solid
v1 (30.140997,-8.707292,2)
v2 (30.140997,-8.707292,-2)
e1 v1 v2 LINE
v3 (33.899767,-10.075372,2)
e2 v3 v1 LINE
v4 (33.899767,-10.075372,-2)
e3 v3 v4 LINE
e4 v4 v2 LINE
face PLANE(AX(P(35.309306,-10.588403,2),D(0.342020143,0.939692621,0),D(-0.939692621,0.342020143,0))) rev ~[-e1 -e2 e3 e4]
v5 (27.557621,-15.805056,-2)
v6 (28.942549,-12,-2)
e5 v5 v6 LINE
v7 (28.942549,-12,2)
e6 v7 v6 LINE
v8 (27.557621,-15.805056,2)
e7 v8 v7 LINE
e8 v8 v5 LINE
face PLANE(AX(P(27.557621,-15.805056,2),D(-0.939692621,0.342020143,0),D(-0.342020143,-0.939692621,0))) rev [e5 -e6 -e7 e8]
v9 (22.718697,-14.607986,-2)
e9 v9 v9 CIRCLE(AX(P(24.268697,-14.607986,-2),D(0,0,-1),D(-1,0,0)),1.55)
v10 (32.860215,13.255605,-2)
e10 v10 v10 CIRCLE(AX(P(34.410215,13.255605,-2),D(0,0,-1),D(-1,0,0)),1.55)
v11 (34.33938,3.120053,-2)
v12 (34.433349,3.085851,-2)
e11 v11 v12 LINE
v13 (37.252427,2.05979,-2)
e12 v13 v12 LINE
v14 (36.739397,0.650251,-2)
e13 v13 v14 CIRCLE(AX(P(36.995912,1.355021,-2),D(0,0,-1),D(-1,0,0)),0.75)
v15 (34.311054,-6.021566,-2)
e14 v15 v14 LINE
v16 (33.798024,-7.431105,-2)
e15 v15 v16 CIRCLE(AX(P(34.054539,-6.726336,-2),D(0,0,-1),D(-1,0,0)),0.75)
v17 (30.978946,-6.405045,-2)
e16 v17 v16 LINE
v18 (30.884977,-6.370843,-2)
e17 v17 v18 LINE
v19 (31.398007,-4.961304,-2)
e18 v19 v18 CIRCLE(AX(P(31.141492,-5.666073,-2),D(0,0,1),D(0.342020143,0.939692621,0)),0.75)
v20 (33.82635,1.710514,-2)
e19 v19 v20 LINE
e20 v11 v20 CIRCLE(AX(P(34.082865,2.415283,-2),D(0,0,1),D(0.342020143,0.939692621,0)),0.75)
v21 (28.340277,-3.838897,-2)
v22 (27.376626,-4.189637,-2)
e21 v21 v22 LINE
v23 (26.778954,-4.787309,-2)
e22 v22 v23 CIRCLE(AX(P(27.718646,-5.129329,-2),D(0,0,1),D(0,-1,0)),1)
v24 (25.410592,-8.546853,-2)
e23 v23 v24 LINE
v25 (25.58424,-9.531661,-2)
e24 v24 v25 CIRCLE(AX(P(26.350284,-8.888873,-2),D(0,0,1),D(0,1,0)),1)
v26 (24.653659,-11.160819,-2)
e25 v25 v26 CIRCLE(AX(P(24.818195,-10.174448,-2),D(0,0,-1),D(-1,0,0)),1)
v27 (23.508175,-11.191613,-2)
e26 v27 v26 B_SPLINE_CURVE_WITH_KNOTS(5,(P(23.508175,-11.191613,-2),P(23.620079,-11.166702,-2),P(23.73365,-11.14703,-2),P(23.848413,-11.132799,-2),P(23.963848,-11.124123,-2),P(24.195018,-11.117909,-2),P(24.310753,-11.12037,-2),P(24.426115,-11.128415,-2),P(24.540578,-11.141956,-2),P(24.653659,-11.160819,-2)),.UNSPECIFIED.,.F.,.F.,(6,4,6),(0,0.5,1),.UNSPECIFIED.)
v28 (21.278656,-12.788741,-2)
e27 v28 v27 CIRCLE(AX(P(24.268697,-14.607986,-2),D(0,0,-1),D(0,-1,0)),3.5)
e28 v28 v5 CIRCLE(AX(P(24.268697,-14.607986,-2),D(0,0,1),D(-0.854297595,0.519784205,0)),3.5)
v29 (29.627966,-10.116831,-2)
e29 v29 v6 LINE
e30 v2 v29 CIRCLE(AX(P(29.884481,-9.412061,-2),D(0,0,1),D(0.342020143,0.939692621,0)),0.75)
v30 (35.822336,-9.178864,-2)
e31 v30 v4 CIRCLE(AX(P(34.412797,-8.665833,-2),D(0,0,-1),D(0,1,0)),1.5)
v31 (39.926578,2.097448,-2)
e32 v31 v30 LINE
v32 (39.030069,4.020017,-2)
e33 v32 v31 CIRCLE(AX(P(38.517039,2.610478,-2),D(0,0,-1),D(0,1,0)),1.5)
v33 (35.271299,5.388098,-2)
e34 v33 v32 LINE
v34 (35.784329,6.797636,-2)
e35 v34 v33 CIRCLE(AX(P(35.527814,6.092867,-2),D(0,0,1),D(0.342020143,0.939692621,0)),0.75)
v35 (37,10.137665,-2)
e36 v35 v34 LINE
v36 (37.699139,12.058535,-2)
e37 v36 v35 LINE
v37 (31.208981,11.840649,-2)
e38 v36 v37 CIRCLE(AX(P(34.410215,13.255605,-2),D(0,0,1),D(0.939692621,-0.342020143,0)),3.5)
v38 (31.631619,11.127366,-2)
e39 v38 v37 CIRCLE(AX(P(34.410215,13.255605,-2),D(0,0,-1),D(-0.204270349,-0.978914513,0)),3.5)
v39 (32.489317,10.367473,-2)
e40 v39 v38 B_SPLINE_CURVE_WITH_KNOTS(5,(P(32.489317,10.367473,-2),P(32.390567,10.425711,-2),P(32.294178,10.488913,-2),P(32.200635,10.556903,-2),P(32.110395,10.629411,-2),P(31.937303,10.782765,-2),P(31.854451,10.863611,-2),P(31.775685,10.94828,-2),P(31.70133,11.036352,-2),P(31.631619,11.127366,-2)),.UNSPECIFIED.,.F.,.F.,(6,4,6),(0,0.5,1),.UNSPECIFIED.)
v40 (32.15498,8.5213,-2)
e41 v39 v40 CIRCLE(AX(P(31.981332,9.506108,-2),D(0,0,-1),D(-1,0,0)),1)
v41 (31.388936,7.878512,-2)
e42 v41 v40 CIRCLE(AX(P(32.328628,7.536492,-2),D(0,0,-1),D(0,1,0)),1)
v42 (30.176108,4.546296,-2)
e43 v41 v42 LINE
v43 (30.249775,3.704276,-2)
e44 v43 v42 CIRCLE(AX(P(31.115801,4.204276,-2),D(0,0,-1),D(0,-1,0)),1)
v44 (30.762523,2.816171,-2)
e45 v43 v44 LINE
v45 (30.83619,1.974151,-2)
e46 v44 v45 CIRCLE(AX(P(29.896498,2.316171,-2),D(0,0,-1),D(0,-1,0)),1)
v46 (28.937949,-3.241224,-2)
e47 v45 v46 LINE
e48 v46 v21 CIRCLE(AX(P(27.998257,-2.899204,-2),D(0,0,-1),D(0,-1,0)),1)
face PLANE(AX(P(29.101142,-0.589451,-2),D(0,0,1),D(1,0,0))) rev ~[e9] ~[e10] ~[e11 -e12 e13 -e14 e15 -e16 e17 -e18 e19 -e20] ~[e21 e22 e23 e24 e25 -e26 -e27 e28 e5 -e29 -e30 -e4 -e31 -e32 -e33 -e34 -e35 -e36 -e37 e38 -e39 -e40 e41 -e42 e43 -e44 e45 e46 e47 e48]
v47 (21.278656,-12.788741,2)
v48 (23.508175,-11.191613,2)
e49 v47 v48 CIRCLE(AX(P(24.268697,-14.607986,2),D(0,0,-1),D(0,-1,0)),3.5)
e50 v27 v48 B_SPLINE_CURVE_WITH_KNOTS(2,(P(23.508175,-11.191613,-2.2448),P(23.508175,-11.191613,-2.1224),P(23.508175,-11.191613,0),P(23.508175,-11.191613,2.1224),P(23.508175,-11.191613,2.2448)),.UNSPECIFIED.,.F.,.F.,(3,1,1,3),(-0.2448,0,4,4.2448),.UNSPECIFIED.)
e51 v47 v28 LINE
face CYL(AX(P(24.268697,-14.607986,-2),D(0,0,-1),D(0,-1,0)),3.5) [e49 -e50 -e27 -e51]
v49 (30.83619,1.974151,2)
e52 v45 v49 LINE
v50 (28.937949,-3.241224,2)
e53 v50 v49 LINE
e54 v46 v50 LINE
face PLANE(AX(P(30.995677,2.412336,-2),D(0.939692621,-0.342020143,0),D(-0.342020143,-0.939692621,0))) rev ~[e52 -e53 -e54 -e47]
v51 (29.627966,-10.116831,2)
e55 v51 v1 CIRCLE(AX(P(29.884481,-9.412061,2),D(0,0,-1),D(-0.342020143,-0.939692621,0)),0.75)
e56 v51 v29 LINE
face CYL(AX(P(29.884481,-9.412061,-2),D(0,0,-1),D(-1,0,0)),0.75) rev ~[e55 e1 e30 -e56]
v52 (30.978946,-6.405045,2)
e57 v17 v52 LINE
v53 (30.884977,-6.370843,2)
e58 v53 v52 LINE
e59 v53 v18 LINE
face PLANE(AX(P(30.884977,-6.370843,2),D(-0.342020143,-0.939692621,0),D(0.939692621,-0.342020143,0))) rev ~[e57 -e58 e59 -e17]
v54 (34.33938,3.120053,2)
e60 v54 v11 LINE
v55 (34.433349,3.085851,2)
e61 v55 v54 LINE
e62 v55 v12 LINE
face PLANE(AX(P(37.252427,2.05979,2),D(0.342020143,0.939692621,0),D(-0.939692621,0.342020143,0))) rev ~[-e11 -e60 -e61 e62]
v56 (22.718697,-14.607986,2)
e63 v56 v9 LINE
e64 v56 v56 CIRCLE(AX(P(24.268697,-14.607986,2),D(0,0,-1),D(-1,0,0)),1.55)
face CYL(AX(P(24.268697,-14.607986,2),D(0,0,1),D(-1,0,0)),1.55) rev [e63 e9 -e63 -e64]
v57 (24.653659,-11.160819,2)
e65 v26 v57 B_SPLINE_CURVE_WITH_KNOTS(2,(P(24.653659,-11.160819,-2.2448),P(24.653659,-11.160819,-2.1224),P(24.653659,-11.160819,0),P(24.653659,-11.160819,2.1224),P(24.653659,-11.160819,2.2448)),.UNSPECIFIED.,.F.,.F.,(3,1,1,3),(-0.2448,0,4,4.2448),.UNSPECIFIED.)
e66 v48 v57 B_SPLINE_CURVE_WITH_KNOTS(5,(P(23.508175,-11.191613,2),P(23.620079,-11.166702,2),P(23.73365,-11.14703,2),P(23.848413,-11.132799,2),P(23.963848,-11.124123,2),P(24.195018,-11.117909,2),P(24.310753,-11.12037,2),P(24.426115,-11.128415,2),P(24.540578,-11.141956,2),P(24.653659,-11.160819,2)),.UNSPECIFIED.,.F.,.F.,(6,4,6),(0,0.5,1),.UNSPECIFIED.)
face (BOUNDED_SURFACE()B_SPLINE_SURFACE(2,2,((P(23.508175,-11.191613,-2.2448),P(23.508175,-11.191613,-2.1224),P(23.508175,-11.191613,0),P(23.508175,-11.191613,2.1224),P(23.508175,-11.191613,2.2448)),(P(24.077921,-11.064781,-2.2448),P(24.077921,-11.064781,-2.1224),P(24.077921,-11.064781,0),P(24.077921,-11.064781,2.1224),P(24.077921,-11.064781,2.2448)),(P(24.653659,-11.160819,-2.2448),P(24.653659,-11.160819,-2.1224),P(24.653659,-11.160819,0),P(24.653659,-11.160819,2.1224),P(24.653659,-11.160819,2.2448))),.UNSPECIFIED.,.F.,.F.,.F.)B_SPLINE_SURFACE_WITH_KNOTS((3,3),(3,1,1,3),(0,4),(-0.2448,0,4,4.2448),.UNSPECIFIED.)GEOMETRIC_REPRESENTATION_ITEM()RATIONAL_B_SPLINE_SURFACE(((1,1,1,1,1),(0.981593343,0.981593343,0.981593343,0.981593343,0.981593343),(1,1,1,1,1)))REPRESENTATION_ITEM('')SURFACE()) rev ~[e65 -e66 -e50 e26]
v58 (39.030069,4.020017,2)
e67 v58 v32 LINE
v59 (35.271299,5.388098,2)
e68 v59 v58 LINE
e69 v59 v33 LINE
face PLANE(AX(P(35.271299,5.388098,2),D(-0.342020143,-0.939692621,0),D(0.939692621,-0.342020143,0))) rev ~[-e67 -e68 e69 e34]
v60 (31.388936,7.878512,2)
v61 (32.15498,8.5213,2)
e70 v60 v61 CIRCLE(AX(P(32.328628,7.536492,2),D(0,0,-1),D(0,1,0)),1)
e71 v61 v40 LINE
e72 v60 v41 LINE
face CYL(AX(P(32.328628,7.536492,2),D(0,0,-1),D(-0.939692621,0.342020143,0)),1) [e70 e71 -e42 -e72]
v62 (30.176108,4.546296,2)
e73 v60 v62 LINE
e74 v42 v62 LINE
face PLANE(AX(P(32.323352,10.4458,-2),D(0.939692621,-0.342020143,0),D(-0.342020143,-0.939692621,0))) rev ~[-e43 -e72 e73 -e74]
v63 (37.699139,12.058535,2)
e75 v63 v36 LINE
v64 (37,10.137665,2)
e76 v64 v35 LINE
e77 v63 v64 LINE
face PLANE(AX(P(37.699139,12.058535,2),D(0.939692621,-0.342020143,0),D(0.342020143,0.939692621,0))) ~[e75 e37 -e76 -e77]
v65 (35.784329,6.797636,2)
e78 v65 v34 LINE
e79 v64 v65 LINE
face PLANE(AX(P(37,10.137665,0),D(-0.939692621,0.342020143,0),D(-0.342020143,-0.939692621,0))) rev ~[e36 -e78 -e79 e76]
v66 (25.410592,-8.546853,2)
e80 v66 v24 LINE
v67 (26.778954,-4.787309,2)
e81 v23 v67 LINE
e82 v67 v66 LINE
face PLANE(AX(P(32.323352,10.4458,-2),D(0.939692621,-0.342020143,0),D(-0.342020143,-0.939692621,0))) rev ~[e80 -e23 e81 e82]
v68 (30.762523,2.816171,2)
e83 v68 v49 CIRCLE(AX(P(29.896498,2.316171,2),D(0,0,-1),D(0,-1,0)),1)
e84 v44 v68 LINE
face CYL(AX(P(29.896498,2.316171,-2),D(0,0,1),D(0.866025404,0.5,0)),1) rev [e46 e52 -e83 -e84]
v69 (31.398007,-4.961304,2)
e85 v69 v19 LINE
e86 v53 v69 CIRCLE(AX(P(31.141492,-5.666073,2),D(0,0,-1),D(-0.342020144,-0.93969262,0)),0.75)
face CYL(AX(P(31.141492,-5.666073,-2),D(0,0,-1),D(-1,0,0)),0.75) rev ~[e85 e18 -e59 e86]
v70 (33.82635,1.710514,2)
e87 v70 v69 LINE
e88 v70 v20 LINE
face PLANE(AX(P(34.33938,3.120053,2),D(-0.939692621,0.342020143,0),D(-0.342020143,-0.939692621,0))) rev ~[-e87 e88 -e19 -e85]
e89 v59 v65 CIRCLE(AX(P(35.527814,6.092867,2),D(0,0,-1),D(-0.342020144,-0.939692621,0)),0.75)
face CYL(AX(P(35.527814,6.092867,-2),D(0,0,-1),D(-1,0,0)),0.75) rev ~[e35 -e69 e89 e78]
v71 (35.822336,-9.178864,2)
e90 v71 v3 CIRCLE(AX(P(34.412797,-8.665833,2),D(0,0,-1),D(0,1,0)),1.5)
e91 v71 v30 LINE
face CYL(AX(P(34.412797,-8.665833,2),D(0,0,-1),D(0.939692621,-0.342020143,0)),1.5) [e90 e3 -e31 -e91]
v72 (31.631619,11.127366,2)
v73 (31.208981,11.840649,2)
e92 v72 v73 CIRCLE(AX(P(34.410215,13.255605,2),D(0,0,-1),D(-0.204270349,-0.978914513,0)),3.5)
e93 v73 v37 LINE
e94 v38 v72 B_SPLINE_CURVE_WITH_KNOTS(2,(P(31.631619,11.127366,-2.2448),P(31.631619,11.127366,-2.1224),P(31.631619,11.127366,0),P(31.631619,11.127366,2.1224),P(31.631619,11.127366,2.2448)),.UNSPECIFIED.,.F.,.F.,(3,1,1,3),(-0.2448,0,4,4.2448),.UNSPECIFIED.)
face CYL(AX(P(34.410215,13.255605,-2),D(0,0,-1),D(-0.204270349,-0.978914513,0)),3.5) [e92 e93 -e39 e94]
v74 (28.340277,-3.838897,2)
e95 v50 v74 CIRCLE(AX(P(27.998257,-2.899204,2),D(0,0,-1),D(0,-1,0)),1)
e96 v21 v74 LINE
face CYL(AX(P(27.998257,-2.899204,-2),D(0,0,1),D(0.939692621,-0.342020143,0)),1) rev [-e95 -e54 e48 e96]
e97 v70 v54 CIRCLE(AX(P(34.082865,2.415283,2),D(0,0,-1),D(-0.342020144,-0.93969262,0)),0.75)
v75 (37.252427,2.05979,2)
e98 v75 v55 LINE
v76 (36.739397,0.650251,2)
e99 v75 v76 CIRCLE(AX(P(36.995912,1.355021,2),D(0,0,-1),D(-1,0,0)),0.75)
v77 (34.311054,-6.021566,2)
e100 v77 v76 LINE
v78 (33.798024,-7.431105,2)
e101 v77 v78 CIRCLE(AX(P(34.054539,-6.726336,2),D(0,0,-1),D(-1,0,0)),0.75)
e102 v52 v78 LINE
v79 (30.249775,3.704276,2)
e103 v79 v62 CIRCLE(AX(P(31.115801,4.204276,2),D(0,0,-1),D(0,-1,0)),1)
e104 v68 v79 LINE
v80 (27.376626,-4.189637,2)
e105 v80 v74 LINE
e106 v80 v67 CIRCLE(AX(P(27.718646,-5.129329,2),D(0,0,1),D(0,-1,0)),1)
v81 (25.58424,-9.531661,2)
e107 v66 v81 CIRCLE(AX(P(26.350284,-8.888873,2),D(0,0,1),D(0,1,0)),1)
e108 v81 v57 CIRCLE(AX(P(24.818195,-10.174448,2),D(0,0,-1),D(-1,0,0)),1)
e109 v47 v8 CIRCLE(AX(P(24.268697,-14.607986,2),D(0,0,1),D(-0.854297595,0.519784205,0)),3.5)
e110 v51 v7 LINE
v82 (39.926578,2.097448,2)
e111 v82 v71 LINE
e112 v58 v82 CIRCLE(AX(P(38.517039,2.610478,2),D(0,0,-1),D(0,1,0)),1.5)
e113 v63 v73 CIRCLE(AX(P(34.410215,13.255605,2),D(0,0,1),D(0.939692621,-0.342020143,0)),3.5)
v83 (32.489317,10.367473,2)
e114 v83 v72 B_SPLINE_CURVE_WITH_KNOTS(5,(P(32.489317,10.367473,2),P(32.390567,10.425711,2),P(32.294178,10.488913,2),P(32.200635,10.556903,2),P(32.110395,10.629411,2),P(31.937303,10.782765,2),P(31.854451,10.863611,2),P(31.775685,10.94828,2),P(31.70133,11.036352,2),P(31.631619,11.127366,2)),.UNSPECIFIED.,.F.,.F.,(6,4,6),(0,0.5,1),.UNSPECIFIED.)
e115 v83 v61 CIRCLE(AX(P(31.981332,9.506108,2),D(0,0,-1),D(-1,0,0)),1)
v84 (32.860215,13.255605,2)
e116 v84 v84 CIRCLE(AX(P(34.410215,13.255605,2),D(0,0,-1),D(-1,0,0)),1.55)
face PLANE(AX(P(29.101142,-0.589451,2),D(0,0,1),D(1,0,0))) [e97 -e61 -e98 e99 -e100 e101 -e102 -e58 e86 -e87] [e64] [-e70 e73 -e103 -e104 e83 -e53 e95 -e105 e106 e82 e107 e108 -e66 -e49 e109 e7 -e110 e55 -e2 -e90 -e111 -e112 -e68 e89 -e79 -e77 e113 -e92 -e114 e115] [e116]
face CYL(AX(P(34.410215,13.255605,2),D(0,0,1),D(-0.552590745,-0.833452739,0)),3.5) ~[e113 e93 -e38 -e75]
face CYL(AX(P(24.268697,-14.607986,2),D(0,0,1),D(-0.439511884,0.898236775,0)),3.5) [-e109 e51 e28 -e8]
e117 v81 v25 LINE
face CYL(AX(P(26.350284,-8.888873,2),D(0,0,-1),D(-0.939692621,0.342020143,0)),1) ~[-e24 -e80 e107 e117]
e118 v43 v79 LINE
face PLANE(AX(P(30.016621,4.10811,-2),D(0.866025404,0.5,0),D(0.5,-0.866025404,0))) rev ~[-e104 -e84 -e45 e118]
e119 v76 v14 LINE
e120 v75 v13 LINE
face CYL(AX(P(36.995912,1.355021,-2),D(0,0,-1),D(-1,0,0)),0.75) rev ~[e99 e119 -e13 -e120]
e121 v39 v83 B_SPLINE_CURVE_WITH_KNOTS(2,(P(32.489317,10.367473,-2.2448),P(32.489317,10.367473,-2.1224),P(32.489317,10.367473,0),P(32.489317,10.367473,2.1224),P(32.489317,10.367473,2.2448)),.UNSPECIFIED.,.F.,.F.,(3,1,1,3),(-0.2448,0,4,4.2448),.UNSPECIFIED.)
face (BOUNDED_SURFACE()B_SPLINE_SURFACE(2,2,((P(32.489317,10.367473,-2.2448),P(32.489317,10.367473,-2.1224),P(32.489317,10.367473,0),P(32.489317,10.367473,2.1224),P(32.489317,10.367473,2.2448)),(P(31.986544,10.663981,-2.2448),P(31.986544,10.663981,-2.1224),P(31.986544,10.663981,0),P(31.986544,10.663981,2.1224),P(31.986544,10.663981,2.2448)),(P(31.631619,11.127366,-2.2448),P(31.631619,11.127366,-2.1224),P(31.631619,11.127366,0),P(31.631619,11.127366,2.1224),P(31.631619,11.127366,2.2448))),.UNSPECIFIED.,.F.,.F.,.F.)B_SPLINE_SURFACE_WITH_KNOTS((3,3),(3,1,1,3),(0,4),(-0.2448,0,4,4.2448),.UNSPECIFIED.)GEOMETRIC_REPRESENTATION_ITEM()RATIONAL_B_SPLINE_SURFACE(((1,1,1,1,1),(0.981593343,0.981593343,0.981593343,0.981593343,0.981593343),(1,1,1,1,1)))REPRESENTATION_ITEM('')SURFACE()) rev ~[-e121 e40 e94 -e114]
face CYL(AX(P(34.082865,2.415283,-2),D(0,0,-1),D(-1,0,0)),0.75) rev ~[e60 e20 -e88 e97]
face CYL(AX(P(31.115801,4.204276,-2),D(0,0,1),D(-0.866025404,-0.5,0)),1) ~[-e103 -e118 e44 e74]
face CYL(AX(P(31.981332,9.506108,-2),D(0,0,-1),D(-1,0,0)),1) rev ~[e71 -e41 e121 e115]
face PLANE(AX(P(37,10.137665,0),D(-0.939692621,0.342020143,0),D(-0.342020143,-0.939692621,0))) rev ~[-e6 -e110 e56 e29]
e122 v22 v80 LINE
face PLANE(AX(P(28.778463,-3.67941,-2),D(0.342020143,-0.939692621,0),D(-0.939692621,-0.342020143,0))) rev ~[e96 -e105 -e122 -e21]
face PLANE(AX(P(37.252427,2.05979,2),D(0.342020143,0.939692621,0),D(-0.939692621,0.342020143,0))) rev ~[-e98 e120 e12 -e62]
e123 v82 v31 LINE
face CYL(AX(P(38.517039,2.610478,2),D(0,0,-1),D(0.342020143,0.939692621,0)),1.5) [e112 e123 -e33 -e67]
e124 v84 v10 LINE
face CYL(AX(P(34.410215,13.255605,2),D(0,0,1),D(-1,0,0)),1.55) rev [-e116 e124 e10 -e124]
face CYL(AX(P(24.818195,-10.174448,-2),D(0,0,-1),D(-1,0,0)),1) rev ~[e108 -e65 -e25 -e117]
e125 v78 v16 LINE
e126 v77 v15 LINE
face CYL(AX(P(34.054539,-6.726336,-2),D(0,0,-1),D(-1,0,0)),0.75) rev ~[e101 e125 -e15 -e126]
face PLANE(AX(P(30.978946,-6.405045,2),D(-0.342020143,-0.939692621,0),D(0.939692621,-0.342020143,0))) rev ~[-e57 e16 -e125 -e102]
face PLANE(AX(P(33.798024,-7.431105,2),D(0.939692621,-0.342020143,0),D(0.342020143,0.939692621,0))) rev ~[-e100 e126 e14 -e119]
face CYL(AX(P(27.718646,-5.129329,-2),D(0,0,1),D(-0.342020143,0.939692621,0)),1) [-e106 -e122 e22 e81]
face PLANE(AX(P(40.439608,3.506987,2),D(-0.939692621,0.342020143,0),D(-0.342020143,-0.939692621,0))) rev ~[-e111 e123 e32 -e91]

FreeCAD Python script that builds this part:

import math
import FreeCAD as App
import Part
import Sketcher
from FreeCAD import Vector
Q = App.Units.Quantity


def edges_at(feature, points):
    """Names of the edges that pass closest to the given points."""
    edges = feature.Shape.Edges
    near = lambda p: min(range(len(edges)), key=lambda i: edges[i].distToShape(Part.Vertex(*p))[0])
    return sorted({f"Edge{near(p) + 1}" for p in points})


def add_polygon(sketch, points):
    """Adds a closed chain of lines whose ends are joined by coincident constraints."""
    first, n = sketch.GeometryCount, len(points)
    for a, b in zip(points, points[1:] + points[:1]):
        sketch.addGeometry(Part.LineSegment(App.Vector(*a, 0), App.Vector(*b, 0)), False)
    for i in range(n):
        sketch.addConstraint(Sketcher.Constraint("Coincident", first + i, 2, first + (i + 1) % n, 1))

doc = App.newDocument("Part")
body = doc.addObject("PartDesign::Body", "Body")

sketch1 = body.newObject("Sketcher::SketchObject", "Sketch")
sketch1.AttachmentSupport = (doc.getObject("XY_Plane"), [""])
sketch1.MapMode = "FlatFace"
sketch1.addGeometry(Part.LineSegment(Vector(-10, 11, 0), Vector(-17.5, 11, 0)), False)
sketch1.addGeometry(Part.ArcOfCircle(Part.Circle(Vector(-17.5, 7.5, 0), Vector(0, 0, 1), 3.5), math.radians(90), math.radians(92.54)), False)
sketch1.addGeometry(Part.LineSegment(Vector(-17.66, 11, 0), Vector(-37, 10.14, 0)), False)
sketch1.addGeometry(Part.LineSegment(Vector(-37, 10.14, 0), Vector(-28.94, -12, 0)), False)
sketch1.addGeometry(Part.LineSegment(Vector(-28.94, -12, 0), Vector(-17.2, -10.99, 0)), False)
sketch1.addGeometry(Part.ArcOfCircle(Part.Circle(Vector(-17.5, -7.5, 0), Vector(0, 0, 1), 3.5), math.radians(-85), math.radians(-12)), False)
sketch1.addGeometry(Part.LineSegment(Vector(-14.08, -8.23, 0), Vector(-2.3, -10.76, 0)), False)
sketch1.addGeometry(Part.ArcOfCircle(Part.Circle(Vector(0, 0, 0), Vector(0, 0, 1), 11), math.radians(-102), math.radians(-78)), False)
sketch1.addGeometry(Part.LineSegment(Vector(2.3, -10.76, 0), Vector(14.08, -8.23, 0)), False)
sketch1.addGeometry(Part.ArcOfCircle(Part.Circle(Vector(17.5, -7.5, 0), Vector(0, 0, 1), 3.5), math.radians(-168), math.radians(-95)), False)
sketch1.addGeometry(Part.LineSegment(Vector(17.2, -10.99, 0), Vector(28.94, -12, 0)), False)
sketch1.addGeometry(Part.LineSegment(Vector(28.94, -12, 0), Vector(37, 10.14, 0)), False)
sketch1.addGeometry(Part.LineSegment(Vector(37, 10.14, 0), Vector(17.66, 11, 0)), False)
sketch1.addGeometry(Part.ArcOfCircle(Part.Circle(Vector(17.5, 7.5, 0), Vector(0, 0, 1), 3.5), math.radians(87.46), math.radians(90)), False)
sketch1.addGeometry(Part.LineSegment(Vector(17.5, 11, 0), Vector(10, 11, 0)), False)
sketch1.addGeometry(Part.LineSegment(Vector(10, 11, 0), Vector(8.32, 9, 0)), False)
sketch1.addGeometry(Part.LineSegment(Vector(8.32, 9, 0), Vector(-8.32, 9, 0)), False)
sketch1.addGeometry(Part.LineSegment(Vector(-8.32, 9, 0), Vector(-10, 11, 0)), False)
sketch1.addGeometry(Part.Circle(Vector(17.5, -7.5, 0), Vector(0, 0, 1), 1.55), False)
sketch1.addGeometry(Part.Circle(Vector(-17.5, -7.5, 0), Vector(0, 0, 1), 1.55), False)
sketch1.addGeometry(Part.Circle(Vector(17.5, 7.5, 0), Vector(0, 0, 1), 1.55), False)
sketch1.addGeometry(Part.Circle(Vector(0, 0, 0), Vector(0, 0, 1), 7), False)
sketch1.addGeometry(Part.Circle(Vector(-17.5, 7.5, 0), Vector(0, 0, 1), 1.55), False)
sketch1.addConstraint(Sketcher.Constraint("Tangent", 0, 2, 1, 1))
sketch1.addConstraint(Sketcher.Constraint("Tangent", 1, 2, 2, 1))
sketch1.addConstraint(Sketcher.Constraint("Coincident", 2, 2, 3, 1))
sketch1.addConstraint(Sketcher.Constraint("Coincident", 3, 2, 4, 1))
sketch1.addConstraint(Sketcher.Constraint("Tangent", 4, 2, 5, 1))
sketch1.addConstraint(Sketcher.Constraint("Coincident", 5, 2, 6, 1))
sketch1.addConstraint(Sketcher.Constraint("Tangent", 6, 2, 7, 1))
sketch1.addConstraint(Sketcher.Constraint("Tangent", 7, 2, 8, 1))
sketch1.addConstraint(Sketcher.Constraint("Coincident", 8, 2, 9, 1))
sketch1.addConstraint(Sketcher.Constraint("Tangent", 9, 2, 10, 1))
sketch1.addConstraint(Sketcher.Constraint("Coincident", 10, 2, 11, 1))
sketch1.addConstraint(Sketcher.Constraint("Coincident", 11, 2, 12, 1))
sketch1.addConstraint(Sketcher.Constraint("Tangent", 12, 2, 13, 1))
sketch1.addConstraint(Sketcher.Constraint("Tangent", 13, 2, 14, 1))
sketch1.addConstraint(Sketcher.Constraint("Coincident", 14, 2, 15, 1))
sketch1.addConstraint(Sketcher.Constraint("Coincident", 15, 2, 16, 1))
sketch1.addConstraint(Sketcher.Constraint("Coincident", 16, 2, 17, 1))
sketch1.addConstraint(Sketcher.Constraint("Coincident", 17, 2, 0, 1))
sketch1.addConstraint(Sketcher.Constraint("Horizontal", 0))
sketch1.addConstraint(Sketcher.Constraint("Horizontal", 14))
sketch1.addConstraint(Sketcher.Constraint("Horizontal", 16))
sketch1.addConstraint(Sketcher.Constraint("Coincident", 7, 3, -1, 1))
sketch1.addConstraint(Sketcher.Constraint("Coincident", 21, 3, -1, 1))
sketch1.addConstraint(Sketcher.Constraint("Coincident", 18, 3, 9, 3))
sketch1.addConstraint(Sketcher.Constraint("Coincident", 19, 3, 5, 3))
sketch1.addConstraint(Sketcher.Constraint("Coincident", 20, 3, 13, 3))
sketch1.addConstraint(Sketcher.Constraint("Coincident", 22, 3, 1, 3))
sketch1.addConstraint(Sketcher.Constraint("Equal", 5, 9))
sketch1.addConstraint(Sketcher.Constraint("Equal", 1, 13))
sketch1.addConstraint(Sketcher.Constraint("Equal", 18, 19))
sketch1.addConstraint(Sketcher.Constraint("Equal", 19, 20))
sketch1.addConstraint(Sketcher.Constraint("Equal", 20, 22))
sketch1.addConstraint(Sketcher.Constraint("Symmetric", 1, 3, 9, 3, -1, 1))
sketch1.addConstraint(Sketcher.Constraint("Symmetric", 5, 3, 13, 3, -1, 1))
sketch1.addConstraint(Sketcher.Constraint("Symmetric", 5, 3, 9, 3, -2))
sketch1.addConstraint(Sketcher.Constraint("Symmetric", 3, 2, 10, 2, -2))
sketch1.addConstraint(Sketcher.Constraint("Symmetric", 2, 2, 11, 2, -2))
sketch1.addConstraint(Sketcher.Constraint("Horizontal", 6, 2, 7, 2))
sketch1.addConstraint(Sketcher.Constraint("Equal", 0, 14))
sketch1.addConstraint(Sketcher.Constraint("Equal", 15, 17))
sketch1.addConstraint(Sketcher.Constraint("Diameter", 21, Q("14 mm")))
sketch1.addConstraint(Sketcher.Constraint("Radius", 7, Q("11 mm")))
sketch1.addConstraint(Sketcher.Constraint("Diameter", 18, Q("3.1 mm")))
sketch1.addConstraint(Sketcher.Constraint("Radius", 5, Q("3.5 mm")))
sketch1.addConstraint(Sketcher.Constraint("Angle", 3, Q("-70 deg")))
sketch1.addConstraint(Sketcher.Constraint("Angle", 15, Q("-130 deg")))
sketch1.addConstraint(Sketcher.Constraint("DistanceX", 0, 2, 0, 1, Q("7.5 mm")))
sketch1.addConstraint(Sketcher.Constraint("DistanceY", -1, 1, 0, 2, Q("11 mm")))
sketch1.addConstraint(Sketcher.Constraint("DistanceX", 2, 2, -1, 1, Q("37 mm")))
sketch1.addConstraint(Sketcher.Constraint("DistanceY", 3, 2, -1, 1, Q("12 mm")))
sketch1.addConstraint(Sketcher.Constraint("DistanceX", -1, 1, 14, 2, Q("10 mm")))
sketch1.addConstraint(Sketcher.Constraint("DistanceY", -1, 1, 15, 2, Q("9 mm")))
sketch1.addConstraint(Sketcher.Constraint("DistanceY", 9, 3, 20, 3, Q("15 mm")))
sketch1.addConstraint(Sketcher.Constraint("Distance", 3, Q("23.558411 mm")))
sketch1.addConstraint(Sketcher.Constraint("Distance", 6, Q("12.04027 mm")))
pad1 = body.newObject("PartDesign::Pad", "Pad")
pad1.Profile = sketch1
pad1.Length = 4
pad1.Midplane = True
doc.recompute()

fillet = body.newObject("PartDesign::Fillet", "Fillet")
fillet.Base = (pad1, edges_at(pad1, [(14.078, -8.233, 0), (-14.078, -8.233, 0)]))
fillet.Radius = 1

sketch2 = body.newObject("Sketcher::SketchObject", "Sketch001")
sketch2.AttachmentSupport = (doc.getObject("XY_Plane"), [""])
sketch2.MapMode = "FlatFace"
sketch2.AttachmentOffset = App.Placement(Vector(0, 0, -3), App.Rotation())
add_polygon(sketch2, [(-20.5, 7.9), (-32.8, 7.3), (-27.2, -8)])
sketch2.addGeometry(Part.LineSegment(Vector(-19.3, 4.4, 0), Vector(-24.6, -8.1, 0)), False)
sketch2.addGeometry(Part.LineSegment(Vector(-24.6, -8.1, 0), Vector(-21, -7.8, 0)), False)
sketch2.addGeometry(Part.ArcOfCircle(Part.Circle(Vector(-17.5, -7.5, 0), Vector(0, 0, 1), 3.5), math.radians(118), math.radians(185)), False)
sketch2.addGeometry(Part.LineSegment(Vector(-19.2, -4.4, 0), Vector(-15.3, 4.7, 0)), False)
sketch2.addGeometry(Part.ArcOfCircle(Part.Circle(Vector(-17.5, 7.5, 0), Vector(0, 0, 1), 3.6), math.radians(-120), math.radians(-52)), False)
sketch2.addConstraint(Sketcher.Constraint("Coincident", 3, 2, 4, 1))
sketch2.addConstraint(Sketcher.Constraint("Coincident", 4, 2, 5, 2))
sketch2.addConstraint(Sketcher.Constraint("Coincident", 5, 1, 6, 1))
sketch2.addConstraint(Sketcher.Constraint("Coincident", 6, 2, 7, 2))
sketch2.addConstraint(Sketcher.Constraint("Coincident", 7, 1, 3, 1))
sketch2.addConstraint(Sketcher.Constraint("Equal", 5, 7))
sketch2.addConstraint(Sketcher.Constraint("Symmetric", 5, 3, 7, 3, -1))
sketch2.addConstraint(Sketcher.Constraint("Parallel", 2, 3))
sketch2.addConstraint(Sketcher.Constraint("Parallel", 3, 6))
sketch2.addConstraint(Sketcher.Constraint("Angle", 1, Q("-70 deg")))
sketch2.addConstraint(Sketcher.Constraint("Radius", 5, Q("3.55 mm")))
sketch2.addConstraint(Sketcher.Constraint("DistanceY", 5, 3, 7, 3, Q("15 mm")))
sketch2.addConstraint(Sketcher.Constraint("DistanceX", 2, 2, 7, 3, Q("3 mm")))
sketch2.addConstraint(Sketcher.Constraint("DistanceX", 5, 3, -1, 1, Q("17.5 mm")))
sketch2.addConstraint(Sketcher.Constraint("Distance", 1, Q("16.25556 mm")))
sketch2.addConstraint(Sketcher.Constraint("Distance", 2, Q("17.189759 mm")))
sketch2.addConstraint(Sketcher.Constraint("DistanceX", 3, 2, -1, 1, Q("24.573191 mm")))
sketch2.addConstraint(Sketcher.Constraint("DistanceY", 4, 2, -1, 1, Q("7.805081 mm")))
sketch2.addConstraint(Sketcher.Constraint("DistanceY", 5, 1, -1, 1, Q("4.37413 mm")))
sketch2.addConstraint(Sketcher.Constraint("DistanceX", 7, 1, -1, 1, Q("19.251811 mm")))
sketch2.addConstraint(Sketcher.Constraint("DistanceY", 3, 2, 1, 2, Q("0.156842 mm")))
sketch2.addConstraint(Sketcher.Constraint("DistanceY", 3, 2, 2, 2, Q("15.97741 mm")))
pocket1 = body.newObject("PartDesign::Pocket", "Pocket")
pocket1.Profile = sketch2
pocket1.Length = 6
pocket1.Reversed = True
doc.recompute()

fillet2 = body.newObject("PartDesign::Fillet", "Fillet001")
fillet2.Base = (pocket1, edges_at(pocket1, [
    (-20.5, 7.867, 0),
    (-27.223, -7.953, 0),
    (-32.783, 7.322, 0),
    (-19.252, 4.412, 0),
    (-15.331, 4.69, 0),
    (-19.183, -4.374, 0),
    (-21.037, -7.805, 0),
    (-24.573, -8.11, 0),
]))
fillet2.Radius = 1
doc.recompute()

mirrored = body.newObject("PartDesign::Mirrored", "Mirrored")
mirrored.Originals = [pocket1]
mirrored.MirrorPlane = (doc.getObject("YZ_Plane"), [""])
body.Tip = mirrored
doc.recompute()

fillet3 = body.newObject("PartDesign::Fillet", "Fillet002")
fillet3.Base = (mirrored, edges_at(mirrored, [
    (20.5, 7.867, 0),
    (27.223, -7.953, 0),
    (32.783, 7.322, 0),
    (19.252, 4.412, 0),
    (15.331, 4.69, 0),
    (19.183, -4.374, 0),
    (21.037, -7.805, 0),
    (24.573, -8.11, 0),
]))
fillet3.Radius = 1

sketch3 = body.newObject("Sketcher::SketchObject", "Sketch002")
sketch3.AttachmentSupport = (doc.getObject("XY_Plane"), [""])
sketch3.MapMode = "FlatFace"
sketch3.AttachmentOffset = App.Placement(Vector(0, 0, 2), App.Rotation())
sketch3.addGeometry(Part.LineSegment(Vector(-37.7, 12.1, 0), Vector(-37, 10.1, 0)), False)
sketch3.addGeometry(Part.LineSegment(Vector(-37, 10.1, 0), Vector(-32.5, 10.3, 0)), False)
sketch3.addGeometry(Part.ArcOfCircle(Part.Circle(Vector(-34.4, 13.3, 0), Vector(0, 0, 1), 3.5), math.radians(-56), math.radians(200)), False)
sketch3.addGeometry(Part.Circle(Vector(-34.4, 13.3, 0), Vector(0, 0, 1), 1.6), False)
sketch3.addGeometry(Part.LineSegment(Vector(-28.9, -12, 0), Vector(-27.6, -15.8, 0)), False)
sketch3.addGeometry(Part.ArcOfCircle(Part.Circle(Vector(-24.3, -14.6, 0), Vector(0, 0, 1), 3.5), math.radians(-160), math.radians(64)), False)
sketch3.addGeometry(Part.LineSegment(Vector(-22.7, -11.5, 0), Vector(-28.9, -12, 0)), False)
sketch3.addGeometry(Part.Circle(Vector(-24.3, -14.6, 0), Vector(0, 0, 1), 1.6), False)
sketch3.addConstraint(Sketcher.Constraint("Coincident", 0, 2, 1, 1))
sketch3.addConstraint(Sketcher.Constraint("Coincident", 1, 2, 2, 1))
sketch3.addConstraint(Sketcher.Constraint("Tangent", 2, 2, 0, 1))
sketch3.addConstraint(Sketcher.Constraint("Tangent", 4, 2, 5, 1))
sketch3.addConstraint(Sketcher.Constraint("Coincident", 5, 2, 6, 1))
sketch3.addConstraint(Sketcher.Constraint("Coincident", 6, 2, 4, 1))
sketch3.addConstraint(Sketcher.Constraint("Coincident", 3, 3, 2, 3))
sketch3.addConstraint(Sketcher.Constraint("Coincident", 7, 3, 5, 3))
sketch3.addConstraint(Sketcher.Constraint("Equal", 2, 5))
sketch3.addConstraint(Sketcher.Constraint("Equal", 3, 7))
sketch3.addConstraint(Sketcher.Constraint("Parallel", 0, 4))
sketch3.addConstraint(Sketcher.Constraint("Diameter", 3, Q("3.1 mm")))
sketch3.addConstraint(Sketcher.Constraint("Radius", 2, Q("3.5 mm")))
sketch3.addConstraint(Sketcher.Constraint("Angle", 0, Q("-70 deg")))
sketch3.addConstraint(Sketcher.Constraint("DistanceX", 0, 2, -1, 1, Q("37 mm")))
sketch3.addConstraint(Sketcher.Constraint("DistanceY", 6, 2, -1, 1, Q("12 mm")))
sketch3.addConstraint(Sketcher.Constraint("DistanceY", 4, 2, 5, 2, Q("4.340899 mm")))
sketch3.addConstraint(Sketcher.Constraint("DistanceX", 1, 2, 6, 2, Q("3.533599 mm")))
sketch3.addConstraint(Sketcher.Constraint("Distance", 1, Q("4.528309 mm")))
sketch3.addConstraint(Sketcher.Constraint("Distance", 6, Q("6.23521 mm")))
sketch3.addConstraint(Sketcher.Constraint("DistanceY", -1, 1, 1, 2, Q("10.33852 mm")))
sketch3.addConstraint(Sketcher.Constraint("DistanceX", 2, 2, -1, 1, Q("37.699139 mm")))
pad2 = body.newObject("PartDesign::Pad", "Pad001")
pad2.Profile = sketch3
pad2.Length = 4
pad2.Reversed = True
doc.recompute()

mirrored2 = body.newObject("PartDesign::Mirrored", "Mirrored001")
mirrored2.Originals = [pad2]
mirrored2.MirrorPlane = (doc.getObject("YZ_Plane"), [""])
body.Tip = mirrored2
doc.recompute()

fillet4 = body.newObject("PartDesign::Fillet", "Fillet003")
fillet4.Base = (mirrored2, edges_at(mirrored2, [
    (-22.73, -11.464, 0),
    (-32.476, 10.339, 0),
    (22.73, -11.464, 0),
    (32.476, 10.339, 0),
]))
fillet4.Radius = 1

sketch4 = body.newObject("Sketcher::SketchObject", "Sketch003")
sketch4.AttachmentSupport = (doc.getObject("XY_Plane"), [""])
sketch4.MapMode = "FlatFace"
sketch4.AttachmentOffset = App.Placement(Vector(0, 0, 2), App.Rotation())
sketch4.addGeometry(Part.LineSegment(Vector(-12.1, 6, 0), Vector(-16.4, -4.2, 0)), False)
sketch4.addGeometry(Part.ArcOfCircle(Part.Circle(Vector(-17.5, -7.5, 0), Vector(0, 0, 1), 3.5), math.radians(47), math.radians(71)), False)
sketch4.addGeometry(Part.LineSegment(Vector(-15.1, -4.9, 0), Vector(-7.5, -6.6, 0)), False)
sketch4.addGeometry(Part.ArcOfCircle(Part.Circle(Vector(0, 0, 0), Vector(0, 0, 1), 10), math.radians(143), math.radians(221)), False)
sketch4.addGeometry(Part.LineSegment(Vector(-8, 6, 0), Vector(-12.1, 6, 0)), False)
sketch4.addConstraint(Sketcher.Constraint("Coincident", 0, 2, 1, 2))
sketch4.addConstraint(Sketcher.Constraint("Coincident", 1, 1, 2, 1))
sketch4.addConstraint(Sketcher.Constraint("Coincident", 2, 2, 3, 2))
sketch4.addConstraint(Sketcher.Constraint("Coincident", 3, 1, 4, 1))
sketch4.addConstraint(Sketcher.Constraint("Coincident", 4, 2, 0, 1))
sketch4.addConstraint(Sketcher.Constraint("Horizontal", 4))
sketch4.addConstraint(Sketcher.Constraint("Coincident", 3, 3, -1, 1))
sketch4.addConstraint(Sketcher.Constraint("Radius", 3, Q("10 mm")))
sketch4.addConstraint(Sketcher.Constraint("Radius", 1, Q("3.5 mm")))
sketch4.addConstraint(Sketcher.Constraint("DistanceX", 3, 1, -1, 1, Q("8 mm")))
sketch4.addConstraint(Sketcher.Constraint("DistanceX", 1, 3, -1, 1, Q("17.5 mm")))
sketch4.addConstraint(Sketcher.Constraint("DistanceY", 1, 3, -1, 1, Q("7.5 mm")))
sketch4.addConstraint(Sketcher.Constraint("DistanceX", 4, 2, 4, 1, Q("4.057869 mm")))
sketch4.addConstraint(Sketcher.Constraint("DistanceX", 1, 1, -1, 1, Q("15.1087 mm")))
sketch4.addConstraint(Sketcher.Constraint("Distance", 0, Q("11.06364 mm")))
sketch4.addConstraint(Sketcher.Constraint("DistanceX", 2, 2, -1, 1, Q("7.54293 mm")))
pocket2 = body.newObject("PartDesign::Pocket", "Pocket001")
pocket2.Profile = sketch4
pocket2.Type = "ThroughAll"
doc.recompute()

mirrored3 = body.newObject("PartDesign::Mirrored", "Mirrored002")
mirrored3.Originals = [pocket2]
mirrored3.MirrorPlane = (doc.getObject("YZ_Plane"), [""])
body.Tip = mirrored3
doc.recompute()

fillet5 = body.newObject("PartDesign::Fillet", "Fillet004")
fillet5.Base = (mirrored3, edges_at(mirrored3, [
    (-12.058, 6, 0),
    (-8, 6, 0),
    (-7.543, -6.565, 0),
    (-15.109, -4.944, 0),
    (-16.385, -4.182, 0),
    (8, 6, 0),
    (12.058, 6, 0),
    (16.385, -4.182, 0),
    (15.109, -4.944, 0),
    (7.543, -6.565, 0),
]))
fillet5.Radius = 1

sketch5 = body.newObject("Sketcher::SketchObject", "Sketch004")
sketch5.AttachmentSupport = (doc.getObject("XY_Plane"), [""])
sketch5.MapMode = "FlatFace"
sketch5.AttachmentOffset = App.Placement(Vector(0, 0, 2), App.Rotation())
add_polygon(sketch5, [(30.9, -6.4), (33.8, -7.4), (37.3, 2.1), (34.3, 3.1)])
sketch5.addConstraint(Sketcher.Constraint("Perpendicular", 0, 1))
sketch5.addConstraint(Sketcher.Constraint("Perpendicular", 1, 2))
sketch5.addConstraint(Sketcher.Constraint("Perpendicular", 2, 3))
sketch5.addConstraint(Sketcher.Constraint("Angle", 0, Q("-20 deg")))
sketch5.addConstraint(Sketcher.Constraint("Distance", 0, Q("3.1 mm")))
sketch5.addConstraint(Sketcher.Constraint("Distance", 1, Q("10.1 mm")))
sketch5.addConstraint(Sketcher.Constraint("DistanceY", -1, 1, 1, 2, Q("2.05979 mm")))
sketch5.addConstraint(Sketcher.Constraint("DistanceX", -1, 1, 2, 2, Q("34.33938 mm")))
pocket3 = body.newObject("PartDesign::Pocket", "Pocket002")
pocket3.Profile = sketch5
pocket3.Type = "ThroughAll"

sketch6 = body.newObject("Sketcher::SketchObject", "Sketch005")
sketch6.AttachmentSupport = (doc.getObject("XY_Plane"), [""])
sketch6.MapMode = "FlatFace"
sketch6.AttachmentOffset = App.Placement(Vector(0, 0, 2), App.Rotation())
add_polygon(sketch6, [(40.4, 3.5), (35.3, 5.4), (34.4, 3.1), (37.3, 2.1), (33.8, -7.4), (31, -6.4), (30.1, -8.7), (35.3, -10.6)])
sketch6.addConstraint(Sketcher.Constraint("Perpendicular", 0, 1))
sketch6.addConstraint(Sketcher.Constraint("Perpendicular", 1, 2))
sketch6.addConstraint(Sketcher.Constraint("Perpendicular", 2, 3))
sketch6.addConstraint(Sketcher.Constraint("Perpendicular", 3, 4))
sketch6.addConstraint(Sketcher.Constraint("Perpendicular", 4, 5))
sketch6.addConstraint(Sketcher.Constraint("Perpendicular", 5, 6))
sketch6.addConstraint(Sketcher.Constraint("Perpendicular", 6, 7))
sketch6.addConstraint(Sketcher.Constraint("Equal", 2, 4))
sketch6.addConstraint(Sketcher.Constraint("Equal", 1, 5))
sketch6.addConstraint(Sketcher.Constraint("Angle", 0, Q("160 deg")))
sketch6.addConstraint(Sketcher.Constraint("Distance", 2, Q("3 mm")))
sketch6.addConstraint(Sketcher.Constraint("Distance", 7, Q("15 mm")))
sketch6.addConstraint(Sketcher.Constraint("Distance", 0, Q("5.5 mm")))
sketch6.addConstraint(Sketcher.Constraint("Distance", 3, Q("10.1 mm")))
sketch6.addConstraint(Sketcher.Constraint("DistanceX", -1, 1, 0, 2, Q("35.271299 mm")))
sketch6.addConstraint(Sketcher.Constraint("DistanceY", -1, 1, 1, 2, Q("3.085851 mm")))
pad3 = body.newObject("PartDesign::Pad", "Pad002")
pad3.Profile = sketch6
pad3.Length = 4
pad3.Reversed = True
doc.recompute()

mirrored4 = body.newObject("PartDesign::Mirrored", "Mirrored003")
mirrored4.Originals = [pocket3, pad3]
mirrored4.MirrorPlane = (doc.getObject("YZ_Plane"), [""])
body.Tip = mirrored4

sketch7 = body.newObject("Sketcher::SketchObject", "Sketch006")
sketch7.AttachmentSupport = (doc.getObject("XY_Plane"), [""])
sketch7.MapMode = "FlatFace"
sketch7.AttachmentOffset = App.Placement(Vector(0, 0, -2), App.Rotation())
sketch7.addGeometry(Part.Circle(Vector(37, 1.4, 0), Vector(0, 0, 1), 0.8), False)
sketch7.addGeometry(Part.Circle(Vector(34.1, 2.4, 0), Vector(0, 0, 1), 0.8), False)
sketch7.addGeometry(Part.Circle(Vector(34.1, -6.7, 0), Vector(0, 0, 1), 0.8), False)
sketch7.addGeometry(Part.Circle(Vector(31.1, -5.7, 0), Vector(0, 0, 1), 0.8), False)
sketch7.addGeometry(Part.Circle(Vector(35.5, 6.1, 0), Vector(0, 0, 1), 0.8), False)
sketch7.addGeometry(Part.Circle(Vector(29.9, -9.4, 0), Vector(0, 0, 1), 0.8), False)
sketch7.addConstraint(Sketcher.Constraint("Equal", 0, 1))
sketch7.addConstraint(Sketcher.Constraint("Equal", 1, 2))
sketch7.addConstraint(Sketcher.Constraint("Equal", 2, 3))
sketch7.addConstraint(Sketcher.Constraint("Equal", 3, 4))
sketch7.addConstraint(Sketcher.Constraint("Equal", 4, 5))
sketch7.addConstraint(Sketcher.Constraint("Diameter", 0, Q("1.5 mm")))
sketch7.addConstraint(Sketcher.Constraint("DistanceX", 4, 3, 0, 3, Q("1.468098 mm")))
sketch7.addConstraint(Sketcher.Constraint("DistanceY", -1, 1, 0, 3, Q("1.355021 mm")))
sketch7.addConstraint(Sketcher.Constraint("DistanceX", -1, 1, 2, 3, Q("34.054539 mm")))
sketch7.addConstraint(Sketcher.Constraint("DistanceX", -1, 1, 3, 3, Q("31.141492 mm")))
sketch7.addConstraint(Sketcher.Constraint("DistanceX", -1, 1, 5, 3, Q("29.884481 mm")))
sketch7.addConstraint(Sketcher.Constraint("DistanceY", 5, 3, -1, 1, Q("9.412061 mm")))
sketch7.addConstraint(Sketcher.Constraint("DistanceY", 2, 3, 1, 3, Q("9.141619 mm")))
sketch7.addConstraint(Sketcher.Constraint("DistanceX", 3, 3, 0, 3, Q("5.85442 mm")))
sketch7.addConstraint(Sketcher.Constraint("DistanceX", 1, 3, 4, 3, Q("1.444949 mm")))
sketch7.addConstraint(Sketcher.Constraint("DistanceY", 3, 3, 4, 3, Q("11.75894 mm")))
sketch7.addConstraint(Sketcher.Constraint("DistanceY", 5, 3, 4, 3, Q("15.504928 mm")))
sketch7.addConstraint(Sketcher.Constraint("DistanceY", -1, 1, 1, 3, Q("2.415283 mm")))
pocket4 = body.newObject("PartDesign::Pocket", "Pocket003")
pocket4.Profile = sketch7
pocket4.Type = "ThroughAll"
pocket4.Reversed = True
doc.recompute()

mirrored5 = body.newObject("PartDesign::Mirrored", "Mirrored004")
mirrored5.Originals = [pocket4]
mirrored5.MirrorPlane = (doc.getObject("YZ_Plane"), [""])
body.Tip = mirrored5
doc.recompute()

fillet6 = body.newObject("PartDesign::Fillet", "Fillet005")
fillet6.Base = (mirrored5, edges_at(mirrored5, [
    (40.44, 3.507, 0),
    (35.309, -10.588, 0),
    (-40.44, 3.507, 0),
    (-35.309, -10.588, 0),
]))
fillet6.Radius = 1.5

sketch8 = body.newObject("Sketcher::SketchObject", "Sketch007")
sketch8.AttachmentSupport = (doc.getObject("XY_Plane"), [""])
sketch8.MapMode = "FlatFace"
sketch8.AttachmentOffset = App.Placement(Vector(0, 0, -2), App.Rotation())
sketch8.addGeometry(Part.LineSegment(Vector(33.7, 9.8, 0), Vector(32.3, 6, 0)), False)
sketch8.addGeometry(Part.LineSegment(Vector(32.3, 6, 0), Vector(28.1, -5.6, 0)), False)
sketch8.addGeometry(Part.LineSegment(Vector(28.1, -5.6, 0), Vector(25.9, -11.5, 0)), False)
sketch8.addGeometry(Part.ArcOfCircle(Part.Circle(Vector(24.3, -14.6, 0), Vector(0, 0, 1), 3.5), math.radians(62), math.radians(270)), False)
sketch8.addGeometry(Part.LineSegment(Vector(24.3, -18.1, 0), Vector(-45.6, -18.1, 0)), False)
sketch8.addGeometry(Part.LineSegment(Vector(-45.6, -18.1, 0), Vector(-45.6, 16.8, 0)), False)
sketch8.addGeometry(Part.LineSegment(Vector(-45.6, 16.8, 0), Vector(34.4, 16.8, 0)), False)
sketch8.addGeometry(Part.ArcOfCircle(Part.Circle(Vector(34.4, 13.3, 0), Vector(0, 0, 1), 3.5), math.radians(90), math.radians(258)), False)
sketch8.addConstraint(Sketcher.Constraint("Coincident", 0, 2, 1, 1))
sketch8.addConstraint(Sketcher.Constraint("Coincident", 1, 2, 2, 1))
sketch8.addConstraint(Sketcher.Constraint("Coincident", 2, 2, 3, 1))
sketch8.addConstraint(Sketcher.Constraint("Tangent", 3, 2, 4, 1))
sketch8.addConstraint(Sketcher.Constraint("Coincident", 4, 2, 5, 1))
sketch8.addConstraint(Sketcher.Constraint("Coincident", 5, 2, 6, 1))
sketch8.addConstraint(Sketcher.Constraint("Tangent", 6, 2, 7, 1))
sketch8.addConstraint(Sketcher.Constraint("Coincident", 7, 2, 0, 1))
sketch8.addConstraint(Sketcher.Constraint("Horizontal", 4))
sketch8.addConstraint(Sketcher.Constraint("Vertical", 5))
sketch8.addConstraint(Sketcher.Constraint("Horizontal", 6))
sketch8.addConstraint(Sketcher.Constraint("Equal", 3, 7))
sketch8.addConstraint(Sketcher.Constraint("Parallel", 0, 1))
sketch8.addConstraint(Sketcher.Constraint("Parallel", 1, 2))
sketch8.addConstraint(Sketcher.Constraint("Radius", 3, Q("3.5 mm")))
sketch8.addConstraint(Sketcher.Constraint("DistanceX", 6, 1, 6, 2, Q("80 mm")))
sketch8.addConstraint(Sketcher.Constraint("Angle", 0, Q("-110 deg")))
sketch8.addConstraint(Sketcher.Constraint("DistanceY", 5, 1, 5, 2, Q("34.863591 mm")))
sketch8.addConstraint(Sketcher.Constraint("DistanceX", 2, 2, 0, 2, Q("6.3932 mm")))
sketch8.addConstraint(Sketcher.Constraint("DistanceY", 7, 2, 7, 3, Q("3.426201 mm")))
sketch8.addConstraint(Sketcher.Constraint("Distance", 2, Q("6.336841 mm")))
sketch8.addConstraint(Sketcher.Constraint("DistanceX", 4, 2, 4, 1, Q("69.858482 mm")))
sketch8.addConstraint(Sketcher.Constraint("DistanceX", -1, 1, 7, 2, Q("33.695269 mm")))
sketch8.addConstraint(Sketcher.Constraint("DistanceY", 3, 3, -1, 1, Q("14.607986 mm")))
pocket5 = body.newObject("PartDesign::Pocket", "Pocket004")
pocket5.Profile = sketch8
pocket5.Type = "ThroughAll"
pocket5.Reversed = True

sketch9 = body.newObject("Sketcher::SketchObject", "Sketch008")
sketch9.AttachmentSupport = (doc.getObject("XY_Plane"), [""])
sketch9.MapMode = "FlatFace"
sketch9.AttachmentOffset = App.Placement(Vector(0, 0, -2), App.Rotation())
sketch9.addGeometry(Part.LineSegment(Vector(24.5, -11.1, 0), Vector(32.3, 10.4, 0)), False)
sketch9.addGeometry(Part.ArcOfCircle(Part.Circle(Vector(34.4, 13.3, 0), Vector(0, 0, 1), 3.5), math.radians(-127), math.radians(-102)), False)
sketch9.addGeometry(Part.LineSegment(Vector(33.7, 9.8, 0), Vector(25.9, -11.5, 0)), False)
sketch9.addGeometry(Part.ArcOfCircle(Part.Circle(Vector(24.3, -14.6, 0), Vector(0, 0, 1), 3.5), math.radians(62), math.radians(87)), False)
sketch9.addConstraint(Sketcher.Constraint("Coincident", 0, 2, 1, 1))
sketch9.addConstraint(Sketcher.Constraint("Coincident", 1, 2, 2, 1))
sketch9.addConstraint(Sketcher.Constraint("Coincident", 2, 2, 3, 1))
sketch9.addConstraint(Sketcher.Constraint("Coincident", 3, 2, 0, 1))
sketch9.addConstraint(Sketcher.Constraint("Equal", 1, 3))
sketch9.addConstraint(Sketcher.Constraint("Parallel", 0, 2))
sketch9.addConstraint(Sketcher.Constraint("Radius", 1, Q("3.5 mm")))
sketch9.addConstraint(Sketcher.Constraint("Angle", 0, Q("70 deg")))
sketch9.addConstraint(Sketcher.Constraint("DistanceY", -1, 1, 0, 2, Q("10.4458 mm")))
sketch9.addConstraint(Sketcher.Constraint("DistanceY", 1, 2, 1, 3, Q("3.426201 mm")))
sketch9.addConstraint(Sketcher.Constraint("Distance", 0, Q("22.94361 mm")))
sketch9.addConstraint(Sketcher.Constraint("Distance", 2, Q("22.723611 mm")))
sketch9.addConstraint(Sketcher.Constraint("DistanceX", -1, 1, 0, 2, Q("32.323352 mm")))
sketch9.addConstraint(Sketcher.Constraint("DistanceX", -1, 1, 1, 2, Q("33.695269 mm")))
pad4 = body.newObject("PartDesign::Pad", "Pad003")
pad4.Profile = sketch9
pad4.Length = 4

sketch10 = body.newObject("Sketcher::SketchObject", "Sketch009")
sketch10.AttachmentSupport = (doc.getObject("XY_Plane"), [""])
sketch10.MapMode = "FlatFace"
sketch10.AttachmentOffset = App.Placement(Vector(0, 0, -2), App.Rotation())
add_polygon(sketch10, [(30, 4.1), (31, 2.4), (28.8, -3.7), (26.9, -4.3)])
sketch10.addConstraint(Sketcher.Constraint("Parallel", 1, 3))
sketch10.addConstraint(Sketcher.Constraint("Equal", 0, 2))
sketch10.addConstraint(Sketcher.Constraint("Angle", 0, Q("-60 deg")))
sketch10.addConstraint(Sketcher.Constraint("Angle", 1, Q("-110 deg")))
sketch10.addConstraint(Sketcher.Constraint("Distance", 3, Q("9 mm")))
sketch10.addConstraint(Sketcher.Constraint("Distance", 1, Q("6.482701 mm")))
sketch10.addConstraint(Sketcher.Constraint("DistanceY", 1, 2, -1, 1, Q("3.67941 mm")))
sketch10.addConstraint(Sketcher.Constraint("DistanceX", -1, 1, 2, 2, Q("26.93844 mm")))
pocket6 = body.newObject("PartDesign::Pocket", "Pocket005")
pocket6.Profile = sketch10
pocket6.Type = "ThroughAll"
pocket6.Reversed = True

sketch11 = body.newObject("Sketcher::SketchObject", "Sketch010")
sketch11.AttachmentSupport = (doc.getObject("XY_Plane"), [""])
sketch11.MapMode = "FlatFace"
sketch11.AttachmentOffset = App.Placement(Vector(0, 0, -2), App.Rotation())
sketch11.addGeometry(Part.Circle(Vector(32, 9.5, 0), Vector(0, 0, 1), 1), False)
sketch11.addGeometry(Part.Circle(Vector(24.8, -10.2, 0), Vector(0, 0, 1), 1), False)
sketch11.addConstraint(Sketcher.Constraint("Equal", 0, 1))
sketch11.addConstraint(Sketcher.Constraint("Diameter", 0, Q("2 mm")))
sketch11.addConstraint(Sketcher.Constraint("DistanceX", -1, 1, 0, 3, Q("31.981332 mm")))
sketch11.addConstraint(Sketcher.Constraint("DistanceY", 1, 3, -1, 1, Q("10.174448 mm")))
sketch11.addConstraint(Sketcher.Constraint("DistanceY", -1, 1, 0, 3, Q("9.506108 mm")))
sketch11.addConstraint(Sketcher.Constraint("DistanceX", -1, 1, 1, 3, Q("24.818195 mm")))
pocket7 = body.newObject("PartDesign::Pocket", "Pocket006")
pocket7.Profile = sketch11
pocket7.Type = "ThroughAll"
pocket7.Reversed = True
doc.recompute()

fillet7 = body.newObject("PartDesign::Fillet", "Fillet006")
fillet7.Base = (pocket7, edges_at(pocket7, [(24.476, -11.114, 0), (32.323, 10.446, 0)]))
fillet7.Radius = 3
doc.recompute()

fillet8 = body.newObject("PartDesign::Fillet", "Fillet007")
fillet8.Base = (fillet7, edges_at(fillet7, [(28.778, -3.679, 0), (30.996, 2.412, 0)]))
fillet8.Radius = 1
doc.recompute()

fillet9 = body.newObject("PartDesign::Fillet", "Fillet008")
fillet9.Base = (fillet8, edges_at(fillet8, [
    (30.017, 4.108, 0),
    (26.938, -4.349, 0),
    (31.639, 8.566, 0),
    (25.16, -9.235, 0),
]))
fillet9.Radius = 1

doc.recompute()
